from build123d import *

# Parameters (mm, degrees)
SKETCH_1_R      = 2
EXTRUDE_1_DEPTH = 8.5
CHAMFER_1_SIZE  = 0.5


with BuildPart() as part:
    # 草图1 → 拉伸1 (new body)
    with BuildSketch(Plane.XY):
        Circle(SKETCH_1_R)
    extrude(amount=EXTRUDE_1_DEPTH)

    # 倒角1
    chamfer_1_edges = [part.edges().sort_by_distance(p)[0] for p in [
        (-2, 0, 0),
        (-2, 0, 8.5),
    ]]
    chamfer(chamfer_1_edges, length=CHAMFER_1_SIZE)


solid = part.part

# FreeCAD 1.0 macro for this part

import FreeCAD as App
import Part
import Sketcher
Q = App.Units.Quantity


def edges_at(feature, points):
    """Names of the edges that pass closest to the given points."""
    edges = feature.Shape.Edges
    near = lambda p: min(range(len(edges)), key=lambda i: edges[i].distToShape(Part.Vertex(*p))[0])
    return sorted({f"Edge{near(p) + 1}" for p in points})

doc = App.newDocument("Part")
body = doc.addObject("PartDesign::Body", "Body")

# Sketch on XY plane
sketch1 = doc.addObject("Sketcher::SketchObject", "Sketch")
body.addObject(sketch1)
sketch1.AttachmentSupport = (doc.XY_Plane, [""])
sketch1.MapMode = "FlatFace"
sketch1.addGeometry(Part.Circle(App.Vector(0, 0, 0), App.Vector(0, 0, 1), 2), False)
sketch1.addConstraint([
    Sketcher.Constraint("Coincident", 0, 3, -1, 1),
    Sketcher.Constraint("Diameter", 0, Q("4 mm")),
])
pad1 = doc.addObject("PartDesign::Pad", "Pad")
body.addObject(pad1)
pad1.Profile = sketch1
pad1.Length = 8.5
doc.recompute()

chamfer = doc.addObject("PartDesign::Chamfer", "Chamfer")
body.addObject(chamfer)
chamfer.Base = (pad1, edges_at(pad1, [(-2, 0, 0), (-2, 0, 8.5)]))
chamfer.Size = 0.5

doc.recompute()
